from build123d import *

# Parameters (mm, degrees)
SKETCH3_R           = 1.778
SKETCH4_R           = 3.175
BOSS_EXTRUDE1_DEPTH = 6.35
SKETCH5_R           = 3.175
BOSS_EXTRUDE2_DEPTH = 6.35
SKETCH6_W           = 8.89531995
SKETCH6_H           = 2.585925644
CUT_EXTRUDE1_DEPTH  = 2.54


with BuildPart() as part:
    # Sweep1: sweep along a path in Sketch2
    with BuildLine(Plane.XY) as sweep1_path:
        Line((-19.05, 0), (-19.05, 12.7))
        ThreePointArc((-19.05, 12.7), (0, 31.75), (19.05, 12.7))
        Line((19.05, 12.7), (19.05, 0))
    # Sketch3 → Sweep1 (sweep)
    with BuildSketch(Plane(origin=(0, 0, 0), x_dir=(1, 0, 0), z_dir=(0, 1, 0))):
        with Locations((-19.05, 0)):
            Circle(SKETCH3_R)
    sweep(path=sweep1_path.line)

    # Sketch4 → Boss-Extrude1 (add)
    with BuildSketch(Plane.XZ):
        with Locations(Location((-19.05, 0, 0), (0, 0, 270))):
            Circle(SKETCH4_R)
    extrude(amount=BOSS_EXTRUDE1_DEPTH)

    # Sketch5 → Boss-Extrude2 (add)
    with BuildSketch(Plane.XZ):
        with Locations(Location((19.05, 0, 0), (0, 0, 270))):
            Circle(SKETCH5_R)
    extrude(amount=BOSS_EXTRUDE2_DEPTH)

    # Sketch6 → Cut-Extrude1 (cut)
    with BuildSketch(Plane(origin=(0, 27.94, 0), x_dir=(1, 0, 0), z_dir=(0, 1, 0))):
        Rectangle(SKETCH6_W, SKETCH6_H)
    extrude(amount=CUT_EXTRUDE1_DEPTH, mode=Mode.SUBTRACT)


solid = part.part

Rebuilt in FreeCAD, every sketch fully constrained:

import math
import FreeCAD as App
import Part
import Sketcher
Q = App.Units.Quantity

doc = App.newDocument("Part")
body = doc.addObject("PartDesign::Body", "Body")

sketch1 = body.newObject("Sketcher::SketchObject", "Sketch")
sketch1.AttachmentSupport = (doc.getObject("XZ_Plane"), [""])
sketch1.MapMode = "FlatFace"
sketch1.addGeometry(Part.Circle(App.Vector(-19.1, 0, 0), App.Vector(0, 0, 1), 1.8), False)
sketch1.addConstraint([
    Sketcher.Constraint("PointOnObject", 0, 3, -1),
    Sketcher.Constraint("Diameter", 0, Q("0.14 in")),
    Sketcher.Constraint("DistanceX", 0, 3, -1, 1, Q("0.75 in")),
])

sketch2 = body.newObject("Sketcher::SketchObject", "Sketch001")
sketch2.AttachmentSupport = (doc.getObject("XY_Plane"), [""])
sketch2.MapMode = "FlatFace"
sketch2.addGeometry([
    Part.LineSegment(App.Vector(-19, 0, 0), App.Vector(-19, 13, 0)),
    Part.ArcOfCircle(Part.Circle(App.Vector(0, 13, 0), App.Vector(0, 0, 1), 19), math.radians(0), math.radians(180)),
    Part.LineSegment(App.Vector(19, 13, 0), App.Vector(19, 0, 0)),
], False)
sketch2.addConstraint([
    Sketcher.Constraint("Tangent", 0, 2, 1, 2),
    Sketcher.Constraint("Tangent", 1, 1, 2, 1),
    Sketcher.Constraint("Vertical", 0),
    Sketcher.Constraint("Vertical", 2),
    Sketcher.Constraint("Symmetric", 0, 1, 2, 2, -1, 1),
    Sketcher.Constraint("PointOnObject", 0, 1, -1),
    Sketcher.Constraint("Radius", 1, Q("0.75 in")),
    Sketcher.Constraint("DistanceY", 0, 1, 0, 2, Q("0.5 in")),
])
doc.recompute()

additivepipe = body.newObject("PartDesign::AdditivePipe", "AdditivePipe")
additivepipe.Profile = sketch1
additivepipe.Spine = (sketch2, ["Edge1", "Edge2", "Edge3"])

sketch3 = body.newObject("Sketcher::SketchObject", "Sketch002")
sketch3.AttachmentSupport = (doc.getObject("XZ_Plane"), [""])
sketch3.MapMode = "FlatFace"
sketch3.addGeometry(Part.Circle(App.Vector(-19.1, 0, 0), App.Vector(0, 0, 1), 3.2), False)
sketch3.addConstraint([
    Sketcher.Constraint("PointOnObject", 0, 3, -1),
    Sketcher.Constraint("Diameter", 0, Q("0.25 in")),
    Sketcher.Constraint("DistanceX", 0, 3, -1, 1, Q("0.75 in")),
])
pad1 = body.newObject("PartDesign::Pad", "Pad")
pad1.Profile = sketch3
pad1.Length = Q("0.25 in")

sketch4 = body.newObject("Sketcher::SketchObject", "Sketch003")
sketch4.AttachmentSupport = (doc.getObject("XZ_Plane"), [""])
sketch4.MapMode = "FlatFace"
sketch4.addGeometry(Part.Circle(App.Vector(19.1, 0, 0), App.Vector(0, 0, 1), 3.2), False)
sketch4.addConstraint([
    Sketcher.Constraint("PointOnObject", 0, 3, -1),
    Sketcher.Constraint("Diameter", 0, Q("0.25 in")),
    Sketcher.Constraint("DistanceX", -1, 1, 0, 3, Q("0.75 in")),
])
pad2 = body.newObject("PartDesign::Pad", "Pad001")
pad2.Profile = sketch4
pad2.Length = Q("0.25 in")

sketch5 = body.newObject("Sketcher::SketchObject", "Sketch004")
sketch5.AttachmentSupport = (doc.getObject("XZ_Plane"), [""])
sketch5.MapMode = "FlatFace"
sketch5.AttachmentOffset = App.Placement(App.Vector(0, 0, -1.1 * 25.4), App.Rotation())
sketch5.addGeometry([
    Part.LineSegment(App.Vector(-4.4, -1.3, 0), App.Vector(-4.4, 1.3, 0)),
    Part.LineSegment(App.Vector(-4.4, 1.3, 0), App.Vector(4.4, 1.3, 0)),
    Part.LineSegment(App.Vector(4.4, 1.3, 0), App.Vector(4.4, -1.3, 0)),
    Part.LineSegment(App.Vector(4.4, -1.3, 0), App.Vector(-4.4, -1.3, 0)),
], False)
sketch5.addConstraint([
    Sketcher.Constraint("Coincident", 0, 2, 1, 1),
    Sketcher.Constraint("Coincident", 1, 2, 2, 1),
    Sketcher.Constraint("Coincident", 2, 2, 3, 1),
    Sketcher.Constraint("Coincident", 3, 2, 0, 1),
    Sketcher.Constraint("Vertical", 0),
    Sketcher.Constraint("Horizontal", 1),
    Sketcher.Constraint("Vertical", 2),
    Sketcher.Constraint("Horizontal", 3),
    Sketcher.Constraint("Symmetric", 0, 2, 2, 2, -1, 1),
    Sketcher.Constraint("DistanceX", 1, 1, 1, 2, Q("8.89532 mm")),
    Sketcher.Constraint("DistanceY", 0, 1, 0, 2, Q("2.585926 mm")),
])
pocket1 = body.newObject("PartDesign::Pocket", "Pocket")
pocket1.Profile = sketch5
pocket1.Length = Q("0.1 in")

doc.recompute()
